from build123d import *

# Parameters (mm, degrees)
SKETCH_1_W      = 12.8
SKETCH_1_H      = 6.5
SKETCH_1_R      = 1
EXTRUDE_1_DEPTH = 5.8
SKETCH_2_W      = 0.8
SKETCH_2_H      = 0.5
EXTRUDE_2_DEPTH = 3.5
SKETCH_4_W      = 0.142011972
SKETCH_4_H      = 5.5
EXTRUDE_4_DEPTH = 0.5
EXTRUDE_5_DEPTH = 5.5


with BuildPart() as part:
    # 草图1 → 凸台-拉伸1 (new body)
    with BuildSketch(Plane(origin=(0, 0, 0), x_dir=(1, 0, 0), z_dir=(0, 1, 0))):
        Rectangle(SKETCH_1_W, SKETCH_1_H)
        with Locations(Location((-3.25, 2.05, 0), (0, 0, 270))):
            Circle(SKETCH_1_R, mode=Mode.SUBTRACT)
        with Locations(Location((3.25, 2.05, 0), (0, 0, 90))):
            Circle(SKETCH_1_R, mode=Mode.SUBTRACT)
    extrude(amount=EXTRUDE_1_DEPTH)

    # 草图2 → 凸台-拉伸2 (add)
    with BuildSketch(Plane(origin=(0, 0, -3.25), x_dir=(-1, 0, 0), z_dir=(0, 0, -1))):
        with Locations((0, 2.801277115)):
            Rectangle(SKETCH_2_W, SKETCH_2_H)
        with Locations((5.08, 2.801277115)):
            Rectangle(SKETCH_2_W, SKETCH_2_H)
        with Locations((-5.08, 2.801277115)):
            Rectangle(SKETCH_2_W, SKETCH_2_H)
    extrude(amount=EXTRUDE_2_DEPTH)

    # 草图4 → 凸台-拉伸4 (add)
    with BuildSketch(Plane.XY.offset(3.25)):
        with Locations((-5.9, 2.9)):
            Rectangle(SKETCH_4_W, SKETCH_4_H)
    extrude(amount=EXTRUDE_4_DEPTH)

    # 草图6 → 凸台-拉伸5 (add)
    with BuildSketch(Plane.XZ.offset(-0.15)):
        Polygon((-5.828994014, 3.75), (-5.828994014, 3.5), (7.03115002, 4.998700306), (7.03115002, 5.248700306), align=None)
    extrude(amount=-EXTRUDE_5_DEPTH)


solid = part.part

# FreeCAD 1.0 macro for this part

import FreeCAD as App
import Part
import Sketcher

V = App.Vector
Q = App.Units.Quantity


def add_polygon(sketch, points):
    """Adds a closed chain of lines whose ends are joined by coincident constraints."""
    first, n = sketch.GeometryCount, len(points)
    for a, b in zip(points, points[1:] + points[:1]):
        sketch.addGeometry(Part.LineSegment(App.Vector(*a, 0), App.Vector(*b, 0)), False)
    for i in range(n):
        sketch.addConstraint(Sketcher.Constraint("Coincident", first + i, 2, first + (i + 1) % n, 1))

doc = App.newDocument("Part")
body = doc.addObject("PartDesign::Body", "Body")

# Sketch on XZ plane
sketch1 = body.newObject("Sketcher::SketchObject", "Sketch")
sketch1.AttachmentSupport = (doc.getObject("XZ_Plane"), [""])
sketch1.MapMode = "FlatFace"
add_polygon(sketch1, [(-6.4, -3.2), (-6.4, 3.2), (6.4, 3.2), (6.4, -3.2)])  # lines 0-3
sketch1.addGeometry(Part.Circle(V(-3.2, -2, 0), V(0, 0, 1), 1), False)  # 4
sketch1.addGeometry(Part.Circle(V(3.2, -2, 0), V(0, 0, 1), 1), False)  # 5
sketch1.addConstraint([
    Sketcher.Constraint("Vertical", 0),
    Sketcher.Constraint("Horizontal", 1),
    Sketcher.Constraint("Vertical", 2),
    Sketcher.Constraint("Horizontal", 3),
    Sketcher.Constraint("Equal", 4, 5),
    Sketcher.Constraint("Symmetric", 0, 2, 2, 2, -1, 1),
    Sketcher.Constraint("Symmetric", 4, 3, 5, 3, -2),
    Sketcher.Constraint("Diameter", 4, Q("2 mm")),
    Sketcher.Constraint("DistanceX", 1, 1, 1, 2, Q("12.8 mm")),
    Sketcher.Constraint("DistanceY", 0, 1, 0, 2, Q("6.5 mm")),
    Sketcher.Constraint("DistanceX", 4, 3, 5, 3, Q("6.5 mm")),
    Sketcher.Constraint("DistanceY", 4, 3, 0, 2, Q("5.3 mm")),
])
pad1 = body.newObject("PartDesign::Pad", "Pad")
pad1.Profile = sketch1
pad1.Length = 5.8
pad1.Reversed = True

# Sketch on XY plane
sketch2 = body.newObject("Sketcher::SketchObject", "Sketch001")
sketch2.AttachmentSupport = (doc.getObject("XY_Plane"), [""])
sketch2.MapMode = "FlatFace"
sketch2.AttachmentOffset = App.Placement(V(0, 0, -3.25), App.Rotation())
add_polygon(sketch2, [(0.4, 3.1), (0.4, 2.6), (-0.4, 2.6), (-0.4, 3.1)])  # lines 0-3
add_polygon(sketch2, [(-4.7, 3.1), (-4.7, 2.6), (-5.5, 2.6), (-5.5, 3.1)])  # lines 4-7
add_polygon(sketch2, [(5.5, 3.1), (5.5, 2.6), (4.7, 2.6), (4.7, 3.1)])  # lines 8-11
sketch2.addConstraint([
    Sketcher.Constraint("Vertical", 0),
    Sketcher.Constraint("Horizontal", 1),
    Sketcher.Constraint("Vertical", 2),
    Sketcher.Constraint("Horizontal", 3),
    Sketcher.Constraint("Vertical", 4),
    Sketcher.Constraint("Horizontal", 5),
    Sketcher.Constraint("Vertical", 6),
    Sketcher.Constraint("Horizontal", 7),
    Sketcher.Constraint("Vertical", 8),
    Sketcher.Constraint("Horizontal", 9),
    Sketcher.Constraint("Vertical", 10),
    Sketcher.Constraint("Horizontal", 11),
    Sketcher.Constraint("Symmetric", 5, 2, 8, 2, -2),
    Sketcher.Constraint("Symmetric", 7, 2, 10, 2, -2),
    Sketcher.Constraint("Horizontal", 1, 2, 4, 2),
    Sketcher.Constraint("Horizontal", 3, 2, 6, 2),
    Sketcher.Constraint("Equal", 3, 5),
    Sketcher.Constraint("DistanceX", 1, 2, 1, 1, Q("0.8 mm")),
    Sketcher.Constraint("DistanceY", 0, 2, 0, 1, Q("0.5 mm")),
    Sketcher.Constraint("DistanceX", -1, 1, 0, 2, Q("0.4 mm")),
    Sketcher.Constraint("DistanceX", 4, 2, -1, 1, Q("4.68 mm")),
    Sketcher.Constraint("DistanceY", -1, 1, 0, 2, Q("2.551277 mm")),
])
pad2 = body.newObject("PartDesign::Pad", "Pad001")
pad2.Profile = sketch2
pad2.Length = 3.5
pad2.Reversed = True

# Sketch on XY plane
sketch3 = body.newObject("Sketcher::SketchObject", "Sketch002")
sketch3.AttachmentSupport = (doc.getObject("XY_Plane"), [""])
sketch3.MapMode = "FlatFace"
sketch3.AttachmentOffset = App.Placement(V(0, 0, 3.25), App.Rotation())
add_polygon(sketch3, [(-5.97, 5.65), (-5.97, 0.15), (-5.83, 0.15), (-5.83, 5.65)])  # lines 0-3
sketch3.addConstraint([
    Sketcher.Constraint("Vertical", 0),
    Sketcher.Constraint("Horizontal", 1),
    Sketcher.Constraint("Vertical", 2),
    Sketcher.Constraint("Horizontal", 3),
    Sketcher.Constraint("DistanceY", 0, 2, 0, 1, Q("5.5 mm")),
    Sketcher.Constraint("DistanceY", -1, 1, 0, 2, Q("0.15 mm")),
    Sketcher.Constraint("DistanceX", 1, 1, 1, 2, Q("0.142012 mm")),
    Sketcher.Constraint("DistanceX", 0, 2, -1, 1, Q("5.971006 mm")),
])
pad3 = body.newObject("PartDesign::Pad", "Pad002")
pad3.Profile = sketch3
pad3.Length = 0.5

# Sketch on XZ plane
sketch4 = body.newObject("Sketcher::SketchObject", "Sketch003")
sketch4.AttachmentSupport = (doc.getObject("XZ_Plane"), [""])
sketch4.MapMode = "FlatFace"
sketch4.AttachmentOffset = App.Placement(V(0, 0, -0.15), App.Rotation())
add_polygon(sketch4, [(-5.83, 3.75), (-5.83, 3.5), (7.03, 5), (7.03, 5.25)])  # lines 0-3
sketch4.addConstraint([
    Sketcher.Constraint("Vertical", 0),
    Sketcher.Constraint("Vertical", 2),
    Sketcher.Constraint("Parallel", 1, 3),
    Sketcher.Constraint("DistanceY", 0, 2, 0, 1, Q("0.25 mm")),
    Sketcher.Constraint("DistanceY", -1, 1, 0, 2, Q("3.5 mm")),
    Sketcher.Constraint("DistanceY", -1, 1, 1, 2, Q("4.9987 mm")),
    Sketcher.Constraint("DistanceX", -1, 1, 1, 2, Q("7.03115 mm")),
    Sketcher.Constraint("Distance", 1, Q("12.947178 mm")),
])
pad4 = body.newObject("PartDesign::Pad", "Pad003")
pad4.Profile = sketch4
pad4.Length = 5.5
pad4.Reversed = True

doc.recompute()
